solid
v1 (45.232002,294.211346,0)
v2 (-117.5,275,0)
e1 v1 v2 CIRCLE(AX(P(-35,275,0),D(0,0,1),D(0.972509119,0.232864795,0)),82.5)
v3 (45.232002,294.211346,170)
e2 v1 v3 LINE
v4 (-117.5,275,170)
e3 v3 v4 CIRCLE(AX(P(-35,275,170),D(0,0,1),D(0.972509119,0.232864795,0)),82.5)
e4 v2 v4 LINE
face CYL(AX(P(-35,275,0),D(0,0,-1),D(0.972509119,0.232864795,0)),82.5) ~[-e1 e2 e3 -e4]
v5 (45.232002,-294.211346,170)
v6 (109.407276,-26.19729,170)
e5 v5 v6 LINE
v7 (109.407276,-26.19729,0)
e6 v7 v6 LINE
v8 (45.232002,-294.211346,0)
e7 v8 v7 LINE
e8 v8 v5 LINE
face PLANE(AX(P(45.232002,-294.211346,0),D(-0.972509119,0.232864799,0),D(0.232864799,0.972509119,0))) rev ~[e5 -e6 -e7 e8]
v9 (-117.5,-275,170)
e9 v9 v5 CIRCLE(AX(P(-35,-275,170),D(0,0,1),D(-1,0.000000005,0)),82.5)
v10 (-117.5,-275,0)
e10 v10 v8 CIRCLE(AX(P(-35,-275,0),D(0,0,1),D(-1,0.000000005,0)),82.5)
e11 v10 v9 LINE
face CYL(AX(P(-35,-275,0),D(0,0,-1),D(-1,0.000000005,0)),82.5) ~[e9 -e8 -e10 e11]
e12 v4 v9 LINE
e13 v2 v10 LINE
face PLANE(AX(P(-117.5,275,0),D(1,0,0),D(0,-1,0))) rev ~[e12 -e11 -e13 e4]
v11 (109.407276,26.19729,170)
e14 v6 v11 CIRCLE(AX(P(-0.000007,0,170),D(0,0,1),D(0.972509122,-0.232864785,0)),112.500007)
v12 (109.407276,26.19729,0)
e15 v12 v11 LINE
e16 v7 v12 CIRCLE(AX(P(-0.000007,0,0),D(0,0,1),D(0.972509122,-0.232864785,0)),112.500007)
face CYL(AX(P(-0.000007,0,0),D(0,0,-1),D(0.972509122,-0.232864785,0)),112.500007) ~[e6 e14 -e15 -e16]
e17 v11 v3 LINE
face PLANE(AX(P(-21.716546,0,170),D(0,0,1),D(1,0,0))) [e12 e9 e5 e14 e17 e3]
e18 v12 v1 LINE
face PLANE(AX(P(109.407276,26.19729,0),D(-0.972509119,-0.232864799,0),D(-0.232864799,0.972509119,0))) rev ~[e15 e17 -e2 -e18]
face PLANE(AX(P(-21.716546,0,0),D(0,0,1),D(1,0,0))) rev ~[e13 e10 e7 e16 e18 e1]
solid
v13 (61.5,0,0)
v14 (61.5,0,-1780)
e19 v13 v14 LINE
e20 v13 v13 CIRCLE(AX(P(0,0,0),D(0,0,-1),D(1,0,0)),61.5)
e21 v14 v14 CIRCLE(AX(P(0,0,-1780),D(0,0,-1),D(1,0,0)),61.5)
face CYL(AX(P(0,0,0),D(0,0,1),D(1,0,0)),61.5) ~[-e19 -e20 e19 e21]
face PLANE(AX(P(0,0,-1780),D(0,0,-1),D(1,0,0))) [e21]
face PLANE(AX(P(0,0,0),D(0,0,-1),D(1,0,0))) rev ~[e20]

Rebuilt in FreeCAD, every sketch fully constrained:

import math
import FreeCAD as App
import Part
import Sketcher

V = App.Vector
Q = App.Units.Quantity

doc = App.newDocument("Part")
body = doc.addObject("PartDesign::Body", "Body")

# Sketch on XY plane
sketch1 = doc.addObject("Sketcher::SketchObject", "Sketch")
body.addObject(sketch1)
sketch1.AttachmentSupport = (doc.XY_Plane, [""])
sketch1.MapMode = "FlatFace"
sketch1.addGeometry([
    Part.LineSegment(V(45, -294, 0), V(109, -26, 0)),  # 0
    Part.ArcOfCircle(Part.Circle(V(0, 0, 0), V(0, 0, 1), 113), math.radians(-13), math.radians(13)),  # 1
    Part.LineSegment(V(109, 26, 0), V(45, 294, 0)),  # 2
    Part.ArcOfCircle(Part.Circle(V(-35, 275, 0), V(0, 0, 1), 82), math.radians(13), math.radians(180)),  # 3
    Part.LineSegment(V(-118, 275, 0), V(-118, -275, 0)),  # 4
    Part.ArcOfCircle(Part.Circle(V(-35, -275, 0), V(0, 0, 1), 82), math.radians(180), math.radians(347)),  # 5
], False)
sketch1.addConstraint([
    Sketcher.Constraint("Tangent", 0, 2, 1, 1),
    Sketcher.Constraint("Tangent", 1, 2, 2, 1),
    Sketcher.Constraint("Tangent", 2, 2, 3, 1),
    Sketcher.Constraint("Tangent", 3, 2, 4, 1),
    Sketcher.Constraint("Tangent", 4, 2, 5, 1),
    Sketcher.Constraint("Tangent", 5, 2, 0, 1),
    Sketcher.Constraint("Vertical", 4),
    Sketcher.Constraint("Coincident", 1, 3, -1, 1),
    Sketcher.Constraint("Equal", 3, 5),
    Sketcher.Constraint("Equal", 0, 2),
    Sketcher.Constraint("Radius", 3, Q("82.5 mm")),
    Sketcher.Constraint("DistanceY", 4, 2, 4, 1, Q("550 mm")),
    Sketcher.Constraint("DistanceX", 3, 3, -1, 1, Q("35 mm")),
    Sketcher.Constraint("Radius", 1, Q("112.500007 mm")),
])
pad1 = doc.addObject("PartDesign::Pad", "Pad")
body.addObject(pad1)
pad1.Profile = sketch1
pad1.Length = 170
body2 = doc.addObject("PartDesign::Body", "Body001")

# Sketch on XY plane
sketch2 = doc.addObject("Sketcher::SketchObject", "Sketch001")
body2.addObject(sketch2)
sketch2.AttachmentSupport = (doc.getObject("XY_Plane001"), [""])
sketch2.MapMode = "FlatFace"
sketch2.addGeometry(Part.Circle(V(0, 0, 0), V(0, 0, 1), 62), False)
sketch2.addConstraint([
    Sketcher.Constraint("Coincident", 0, 3, -1, 1),
    Sketcher.Constraint("Diameter", 0, Q("123 mm")),
])
pad2 = doc.addObject("PartDesign::Pad", "Pad001")
body2.addObject(pad2)
pad2.Profile = sketch2
pad2.Length = 1780
pad2.Reversed = True

doc.recompute()
